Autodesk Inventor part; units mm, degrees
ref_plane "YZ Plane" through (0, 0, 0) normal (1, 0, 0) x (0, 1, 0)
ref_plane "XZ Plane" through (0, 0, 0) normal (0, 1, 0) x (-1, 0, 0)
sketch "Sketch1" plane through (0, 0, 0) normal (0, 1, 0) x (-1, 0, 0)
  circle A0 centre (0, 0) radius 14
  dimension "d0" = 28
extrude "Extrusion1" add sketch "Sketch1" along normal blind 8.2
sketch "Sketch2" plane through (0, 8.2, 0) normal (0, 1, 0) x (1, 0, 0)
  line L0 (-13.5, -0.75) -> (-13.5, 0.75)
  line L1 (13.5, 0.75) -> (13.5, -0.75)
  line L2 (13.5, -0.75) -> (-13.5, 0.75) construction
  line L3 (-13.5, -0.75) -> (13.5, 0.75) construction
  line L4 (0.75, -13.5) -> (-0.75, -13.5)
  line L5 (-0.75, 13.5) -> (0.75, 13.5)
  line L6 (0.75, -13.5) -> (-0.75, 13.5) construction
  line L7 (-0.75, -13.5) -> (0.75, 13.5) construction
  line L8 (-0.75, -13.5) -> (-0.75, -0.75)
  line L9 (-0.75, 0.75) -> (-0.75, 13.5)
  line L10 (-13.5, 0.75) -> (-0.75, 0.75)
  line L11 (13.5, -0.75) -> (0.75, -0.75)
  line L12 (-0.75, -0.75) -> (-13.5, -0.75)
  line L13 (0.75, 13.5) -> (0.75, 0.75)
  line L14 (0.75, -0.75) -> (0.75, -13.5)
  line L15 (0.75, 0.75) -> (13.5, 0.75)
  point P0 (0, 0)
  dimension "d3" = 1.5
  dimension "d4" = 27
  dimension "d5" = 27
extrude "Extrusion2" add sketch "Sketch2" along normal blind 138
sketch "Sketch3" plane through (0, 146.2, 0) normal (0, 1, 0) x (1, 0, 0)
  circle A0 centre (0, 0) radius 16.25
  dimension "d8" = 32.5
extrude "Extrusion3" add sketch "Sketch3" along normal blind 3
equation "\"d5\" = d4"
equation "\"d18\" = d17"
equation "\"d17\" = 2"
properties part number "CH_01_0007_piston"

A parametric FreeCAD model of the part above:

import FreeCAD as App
import Part
import Sketcher

V = App.Vector

doc = App.newDocument("Part")
body = doc.addObject("PartDesign::Body", "Body")

# Sketch on XZ plane
sketch1 = body.newObject("Sketcher::SketchObject", "Sketch")
sketch1.AttachmentSupport = (doc.getObject("XZ_Plane"), [""])
sketch1.MapMode = "FlatFace"
sketch1.addGeometry(Part.Circle(V(0, 0, 0), V(0, 0, 1), 14), False)
sketch1.addConstraint(Sketcher.Constraint("Coincident", 0, 3, -1, 1))
sketch1.addConstraint(Sketcher.Constraint("Diameter", 0, 28.0))
pad1 = body.newObject("PartDesign::Pad", "Pad")
pad1.Profile = sketch1
pad1.Length = 8.2
pad1.Reversed = True

# Sketch on XZ plane
sketch2 = body.newObject("Sketcher::SketchObject", "Sketch001")
sketch2.AttachmentSupport = (doc.getObject("XZ_Plane"), [""])
sketch2.MapMode = "FlatFace"
sketch2.AttachmentOffset = App.Placement(V(0, 0, -8.2), App.Rotation())
sketch2.addGeometry(Part.LineSegment(V(-13.5, -0.8, 0), V(-13.5, 0.8, 0)), False)
sketch2.addGeometry(Part.LineSegment(V(-13.5, 0.8, 0), V(-0.8, 0.8, 0)), False)
sketch2.addGeometry(Part.LineSegment(V(-0.8, 0.8, 0), V(-0.8, 13.5, 0)), False)
sketch2.addGeometry(Part.LineSegment(V(-0.8, 13.5, 0), V(0.8, 13.5, 0)), False)
sketch2.addGeometry(Part.LineSegment(V(0.8, 13.5, 0), V(0.8, 0.8, 0)), False)
sketch2.addGeometry(Part.LineSegment(V(0.8, 0.8, 0), V(13.5, 0.8, 0)), False)
sketch2.addGeometry(Part.LineSegment(V(13.5, 0.8, 0), V(13.5, -0.8, 0)), False)
sketch2.addGeometry(Part.LineSegment(V(13.5, -0.8, 0), V(0.8, -0.8, 0)), False)
sketch2.addGeometry(Part.LineSegment(V(0.8, -0.8, 0), V(0.8, -13.5, 0)), False)
sketch2.addGeometry(Part.LineSegment(V(0.8, -13.5, 0), V(-0.8, -13.5, 0)), False)
sketch2.addGeometry(Part.LineSegment(V(-0.8, -13.5, 0), V(-0.8, -0.8, 0)), False)
sketch2.addGeometry(Part.LineSegment(V(-0.8, -0.8, 0), V(-13.5, -0.8, 0)), False)
sketch2.addConstraint(Sketcher.Constraint("Coincident", 0, 2, 1, 1))
sketch2.addConstraint(Sketcher.Constraint("Coincident", 1, 2, 2, 1))
sketch2.addConstraint(Sketcher.Constraint("Coincident", 2, 2, 3, 1))
sketch2.addConstraint(Sketcher.Constraint("Coincident", 3, 2, 4, 1))
sketch2.addConstraint(Sketcher.Constraint("Coincident", 4, 2, 5, 1))
sketch2.addConstraint(Sketcher.Constraint("Coincident", 5, 2, 6, 1))
sketch2.addConstraint(Sketcher.Constraint("Coincident", 6, 2, 7, 1))
sketch2.addConstraint(Sketcher.Constraint("Coincident", 7, 2, 8, 1))
sketch2.addConstraint(Sketcher.Constraint("Coincident", 8, 2, 9, 1))
sketch2.addConstraint(Sketcher.Constraint("Coincident", 9, 2, 10, 1))
sketch2.addConstraint(Sketcher.Constraint("Coincident", 10, 2, 11, 1))
sketch2.addConstraint(Sketcher.Constraint("Coincident", 11, 2, 0, 1))
sketch2.addConstraint(Sketcher.Constraint("Vertical", 0))
sketch2.addConstraint(Sketcher.Constraint("Horizontal", 1))
sketch2.addConstraint(Sketcher.Constraint("Vertical", 2))
sketch2.addConstraint(Sketcher.Constraint("Horizontal", 3))
sketch2.addConstraint(Sketcher.Constraint("Vertical", 4))
sketch2.addConstraint(Sketcher.Constraint("Horizontal", 5))
sketch2.addConstraint(Sketcher.Constraint("Vertical", 6))
sketch2.addConstraint(Sketcher.Constraint("Horizontal", 7))
sketch2.addConstraint(Sketcher.Constraint("Vertical", 8))
sketch2.addConstraint(Sketcher.Constraint("Horizontal", 9))
sketch2.addConstraint(Sketcher.Constraint("Vertical", 10))
sketch2.addConstraint(Sketcher.Constraint("Horizontal", 11))
sketch2.addConstraint(Sketcher.Constraint("Symmetric", 0, 2, 6, 2, -1, 1))
sketch2.addConstraint(Sketcher.Constraint("Symmetric", 2, 2, 8, 2, -1, 1))
sketch2.addConstraint(Sketcher.Constraint("Symmetric", 4, 2, 10, 2, -1, 1))
sketch2.addConstraint(Sketcher.Constraint("Symmetric", 1, 2, 4, 2, -2))
sketch2.addConstraint(Sketcher.Constraint("Equal", 9, 0))
sketch2.addConstraint(Sketcher.Constraint("Equal", 11, 2))
sketch2.addConstraint(Sketcher.Constraint("DistanceX", 3, 1, 3, 2, 1.5))
sketch2.addConstraint(Sketcher.Constraint("DistanceX", 0, 2, 5, 2, 27.0))
pad2 = body.newObject("PartDesign::Pad", "Pad001")
pad2.Profile = sketch2
pad2.Length = 138
pad2.Reversed = True

# Sketch on XZ plane
sketch3 = body.newObject("Sketcher::SketchObject", "Sketch002")
sketch3.AttachmentSupport = (doc.getObject("XZ_Plane"), [""])
sketch3.MapMode = "FlatFace"
sketch3.AttachmentOffset = App.Placement(V(0, 0, -146.2), App.Rotation())
sketch3.addGeometry(Part.Circle(V(0, 0, 0), V(0, 0, 1), 16), False)
sketch3.addConstraint(Sketcher.Constraint("Coincident", 0, 3, -1, 1))
sketch3.addConstraint(Sketcher.Constraint("Diameter", 0, 32.5))
pad3 = body.newObject("PartDesign::Pad", "Pad002")
pad3.Profile = sketch3
pad3.Length = 3
pad3.Reversed = True

doc.recompute()
